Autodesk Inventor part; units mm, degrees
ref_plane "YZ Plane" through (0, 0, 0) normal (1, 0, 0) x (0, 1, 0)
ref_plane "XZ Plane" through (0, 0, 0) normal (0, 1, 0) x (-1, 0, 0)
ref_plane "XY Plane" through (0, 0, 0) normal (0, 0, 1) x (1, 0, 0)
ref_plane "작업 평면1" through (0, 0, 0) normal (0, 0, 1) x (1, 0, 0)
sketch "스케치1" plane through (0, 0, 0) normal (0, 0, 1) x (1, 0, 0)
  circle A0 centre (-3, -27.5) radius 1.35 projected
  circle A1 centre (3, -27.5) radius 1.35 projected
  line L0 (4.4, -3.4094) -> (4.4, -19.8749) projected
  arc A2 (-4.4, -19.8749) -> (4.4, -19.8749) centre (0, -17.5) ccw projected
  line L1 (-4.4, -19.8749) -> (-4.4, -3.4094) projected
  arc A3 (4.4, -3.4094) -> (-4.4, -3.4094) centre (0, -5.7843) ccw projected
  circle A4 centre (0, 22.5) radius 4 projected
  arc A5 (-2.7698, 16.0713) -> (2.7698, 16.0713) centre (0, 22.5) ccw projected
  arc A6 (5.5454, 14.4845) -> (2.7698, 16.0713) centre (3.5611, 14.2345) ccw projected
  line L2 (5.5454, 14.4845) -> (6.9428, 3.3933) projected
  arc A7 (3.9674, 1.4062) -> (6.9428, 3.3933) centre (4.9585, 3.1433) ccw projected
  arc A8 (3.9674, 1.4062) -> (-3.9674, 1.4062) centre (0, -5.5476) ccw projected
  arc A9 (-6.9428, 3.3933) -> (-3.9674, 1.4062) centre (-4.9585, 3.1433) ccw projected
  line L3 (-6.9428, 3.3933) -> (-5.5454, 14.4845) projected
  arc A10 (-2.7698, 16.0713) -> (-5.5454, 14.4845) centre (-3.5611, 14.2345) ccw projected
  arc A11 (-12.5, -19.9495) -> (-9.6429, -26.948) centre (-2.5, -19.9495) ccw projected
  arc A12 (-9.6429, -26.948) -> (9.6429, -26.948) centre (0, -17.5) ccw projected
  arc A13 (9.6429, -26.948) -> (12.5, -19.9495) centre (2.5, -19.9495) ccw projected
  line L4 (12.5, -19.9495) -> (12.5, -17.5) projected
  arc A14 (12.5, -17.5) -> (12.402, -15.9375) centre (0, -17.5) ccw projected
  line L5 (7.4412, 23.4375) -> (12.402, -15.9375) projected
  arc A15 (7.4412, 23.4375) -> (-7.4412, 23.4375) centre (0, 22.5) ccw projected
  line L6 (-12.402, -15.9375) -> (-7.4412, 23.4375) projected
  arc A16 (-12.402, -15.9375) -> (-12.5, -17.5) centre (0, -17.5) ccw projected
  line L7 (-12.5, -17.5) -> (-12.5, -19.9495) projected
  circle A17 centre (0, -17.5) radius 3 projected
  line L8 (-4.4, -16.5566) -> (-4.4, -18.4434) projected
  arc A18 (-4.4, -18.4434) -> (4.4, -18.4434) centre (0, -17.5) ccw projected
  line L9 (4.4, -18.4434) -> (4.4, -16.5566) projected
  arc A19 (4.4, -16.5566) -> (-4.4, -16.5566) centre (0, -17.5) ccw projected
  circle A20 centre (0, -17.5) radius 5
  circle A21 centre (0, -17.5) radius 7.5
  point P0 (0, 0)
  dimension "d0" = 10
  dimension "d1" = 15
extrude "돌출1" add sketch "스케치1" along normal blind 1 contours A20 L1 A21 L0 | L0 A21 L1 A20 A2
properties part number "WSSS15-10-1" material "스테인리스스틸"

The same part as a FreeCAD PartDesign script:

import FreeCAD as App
import Part
import Sketcher

V = App.Vector

doc = App.newDocument("Part")
body = doc.addObject("PartDesign::Body", "Body")

# Sketch on XY plane
sketch1 = body.newObject("Sketcher::SketchObject", "Sketch")
sketch1.AttachmentSupport = (doc.getObject("XY_Plane"), [""])
sketch1.MapMode = "FlatFace"
sketch1.addGeometry([
    Part.Circle(V(0, -18, 0), V(0, 0, 1), 8),
    Part.Circle(V(0, -18, 0), V(0, 0, 1), 5),
], False)
sketch1.addConstraint([
    Sketcher.Constraint("Coincident", 1, 3, 0, 3),
    Sketcher.Constraint("PointOnObject", 0, 3, -2),
    Sketcher.Constraint("Diameter", 0, 15.0),
    Sketcher.Constraint("Diameter", 1, 10.0),
    Sketcher.Constraint("DistanceY", 0, 3, -1, 1, 17.5),
])
pad1 = body.newObject("PartDesign::Pad", "Pad")
pad1.Profile = sketch1
pad1.Length = 1

doc.recompute()
